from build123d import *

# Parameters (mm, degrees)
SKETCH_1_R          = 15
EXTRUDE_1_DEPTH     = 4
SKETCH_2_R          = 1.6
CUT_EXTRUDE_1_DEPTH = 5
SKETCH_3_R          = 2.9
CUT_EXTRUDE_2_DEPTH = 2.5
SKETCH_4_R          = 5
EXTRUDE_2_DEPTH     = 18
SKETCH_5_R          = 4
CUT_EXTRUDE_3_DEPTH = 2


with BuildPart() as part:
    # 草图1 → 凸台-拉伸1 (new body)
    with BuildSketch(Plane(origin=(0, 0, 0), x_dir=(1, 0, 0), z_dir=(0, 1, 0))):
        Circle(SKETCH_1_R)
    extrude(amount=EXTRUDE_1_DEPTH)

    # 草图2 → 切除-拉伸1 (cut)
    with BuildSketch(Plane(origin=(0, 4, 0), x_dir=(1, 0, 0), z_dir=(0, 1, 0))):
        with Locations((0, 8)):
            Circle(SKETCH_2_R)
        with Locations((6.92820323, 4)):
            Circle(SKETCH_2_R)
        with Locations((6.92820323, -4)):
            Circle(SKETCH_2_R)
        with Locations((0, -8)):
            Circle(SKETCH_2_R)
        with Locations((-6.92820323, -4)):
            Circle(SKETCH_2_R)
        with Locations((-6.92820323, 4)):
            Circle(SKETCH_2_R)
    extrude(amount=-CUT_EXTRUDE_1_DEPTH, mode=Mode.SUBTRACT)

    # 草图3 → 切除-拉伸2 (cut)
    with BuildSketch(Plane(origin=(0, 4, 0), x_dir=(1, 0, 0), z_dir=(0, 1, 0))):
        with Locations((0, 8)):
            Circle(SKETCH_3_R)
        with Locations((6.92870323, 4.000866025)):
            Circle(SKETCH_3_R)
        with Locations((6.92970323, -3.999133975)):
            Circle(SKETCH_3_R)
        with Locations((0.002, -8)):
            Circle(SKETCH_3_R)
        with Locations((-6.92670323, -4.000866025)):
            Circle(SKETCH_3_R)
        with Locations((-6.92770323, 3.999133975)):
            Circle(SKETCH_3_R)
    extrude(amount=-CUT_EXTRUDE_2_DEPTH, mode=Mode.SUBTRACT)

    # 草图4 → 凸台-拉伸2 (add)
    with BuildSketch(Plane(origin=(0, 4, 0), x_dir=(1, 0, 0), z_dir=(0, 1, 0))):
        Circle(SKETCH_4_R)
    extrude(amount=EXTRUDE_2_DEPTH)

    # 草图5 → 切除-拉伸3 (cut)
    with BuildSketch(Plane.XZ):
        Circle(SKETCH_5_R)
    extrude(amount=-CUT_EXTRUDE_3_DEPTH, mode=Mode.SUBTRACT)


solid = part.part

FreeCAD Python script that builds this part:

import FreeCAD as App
import Part
import Sketcher
Q = App.Units.Quantity

doc = App.newDocument("Part")
body = doc.addObject("PartDesign::Body", "Body")

# Sketch on XZ plane
sketch1 = body.newObject("Sketcher::SketchObject", "Sketch")
sketch1.AttachmentSupport = (doc.getObject("XZ_Plane"), [""])
sketch1.MapMode = "FlatFace"
sketch1.addGeometry(Part.Circle(App.Vector(0, 0, 0), App.Vector(0, 0, 1), 15), False)
sketch1.addConstraint([
    Sketcher.Constraint("Coincident", 0, 3, -1, 1),
    Sketcher.Constraint("Diameter", 0, Q("30 mm")),
])
pad1 = body.newObject("PartDesign::Pad", "Pad")
pad1.Profile = sketch1
pad1.Length = 4
pad1.Reversed = True

# Sketch on XZ plane
sketch2 = body.newObject("Sketcher::SketchObject", "Sketch001")
sketch2.AttachmentSupport = (doc.getObject("XZ_Plane"), [""])
sketch2.MapMode = "FlatFace"
sketch2.AttachmentOffset = App.Placement(App.Vector(0, 0, -4), App.Rotation())
sketch2.addGeometry([
    Part.Circle(App.Vector(0, -8, 0), App.Vector(0, 0, 1), 1.6),  # 0
    Part.Circle(App.Vector(6.9, -4, 0), App.Vector(0, 0, 1), 1.6),  # 1
    Part.Circle(App.Vector(6.9, 4, 0), App.Vector(0, 0, 1), 1.6),  # 2
    Part.Circle(App.Vector(0, 8, 0), App.Vector(0, 0, 1), 1.6),  # 3
    Part.Circle(App.Vector(-6.9, 4, 0), App.Vector(0, 0, 1), 1.6),  # 4
    Part.Circle(App.Vector(-6.9, -4, 0), App.Vector(0, 0, 1), 1.6),  # 5
], False)
sketch2.addConstraint([
    Sketcher.Constraint("Equal", 0, 1),
    Sketcher.Constraint("Equal", 1, 2),
    Sketcher.Constraint("Equal", 2, 3),
    Sketcher.Constraint("Equal", 3, 4),
    Sketcher.Constraint("Equal", 4, 5),
    Sketcher.Constraint("Symmetric", 0, 3, 3, 3, -1, 1),
    Sketcher.Constraint("Symmetric", 1, 3, 4, 3, -1, 1),
    Sketcher.Constraint("Symmetric", 2, 3, 5, 3, -1, 1),
    Sketcher.Constraint("Symmetric", 2, 3, 4, 3, -2),
    Sketcher.Constraint("PointOnObject", 0, 3, -2),
    Sketcher.Constraint("Diameter", 0, Q("3.2 mm")),
    Sketcher.Constraint("DistanceY", 0, 3, -1, 1, Q("8 mm")),
    Sketcher.Constraint("DistanceY", 1, 3, -1, 1, Q("4 mm")),
    Sketcher.Constraint("DistanceX", -1, 1, 1, 3, Q("6.928203 mm")),
])
pocket1 = body.newObject("PartDesign::Pocket", "Pocket")
pocket1.Profile = sketch2
pocket1.Length = 5
pocket1.Reversed = True

# Sketch on XZ plane
sketch3 = body.newObject("Sketcher::SketchObject", "Sketch002")
sketch3.AttachmentSupport = (doc.getObject("XZ_Plane"), [""])
sketch3.MapMode = "FlatFace"
sketch3.AttachmentOffset = App.Placement(App.Vector(0, 0, -4), App.Rotation())
sketch3.addGeometry([
    Part.Circle(App.Vector(0, -8, 0), App.Vector(0, 0, 1), 2.9),  # 0
    Part.Circle(App.Vector(6.9, -4, 0), App.Vector(0, 0, 1), 2.9),  # 1
    Part.Circle(App.Vector(6.9, 4, 0), App.Vector(0, 0, 1), 2.9),  # 2
    Part.Circle(App.Vector(0, 8, 0), App.Vector(0, 0, 1), 2.9),  # 3
    Part.Circle(App.Vector(-6.9, 4, 0), App.Vector(0, 0, 1), 2.9),  # 4
    Part.Circle(App.Vector(-6.9, -4, 0), App.Vector(0, 0, 1), 2.9),  # 5
], False)
sketch3.addConstraint([
    Sketcher.Constraint("Equal", 0, 1),
    Sketcher.Constraint("Equal", 1, 2),
    Sketcher.Constraint("Equal", 2, 3),
    Sketcher.Constraint("Equal", 3, 4),
    Sketcher.Constraint("Equal", 4, 5),
    Sketcher.Constraint("PointOnObject", 0, 3, -2),
    Sketcher.Constraint("Diameter", 0, Q("5.8 mm")),
    Sketcher.Constraint("DistanceY", 0, 3, -1, 1, Q("8 mm")),
    Sketcher.Constraint("DistanceY", -1, 1, 3, 3, Q("8 mm")),
    Sketcher.Constraint("DistanceY", 1, 3, 2, 3, Q("8 mm")),
    Sketcher.Constraint("DistanceY", 5, 3, 4, 3, Q("8 mm")),
    Sketcher.Constraint("DistanceX", -1, 1, 3, 3, Q("0.002 mm")),
    Sketcher.Constraint("DistanceX", 1, 3, 2, 3, Q("0.001 mm")),
    Sketcher.Constraint("DistanceX", 5, 3, 4, 3, Q("0.001 mm")),
    Sketcher.Constraint("DistanceX", -1, 1, 1, 3, Q("6.928703 mm")),
    Sketcher.Constraint("DistanceY", 1, 3, -1, 1, Q("4.000866 mm")),
    Sketcher.Constraint("DistanceX", 4, 3, -1, 1, Q("6.926703 mm")),
    Sketcher.Constraint("DistanceY", -1, 1, 4, 3, Q("4.000866 mm")),
])
pocket2 = body.newObject("PartDesign::Pocket", "Pocket001")
pocket2.Profile = sketch3
pocket2.Length = 2.5
pocket2.Reversed = True

# Sketch on XZ plane
sketch4 = body.newObject("Sketcher::SketchObject", "Sketch003")
sketch4.AttachmentSupport = (doc.getObject("XZ_Plane"), [""])
sketch4.MapMode = "FlatFace"
sketch4.AttachmentOffset = App.Placement(App.Vector(0, 0, -4), App.Rotation())
sketch4.addGeometry(Part.Circle(App.Vector(0, 0, 0), App.Vector(0, 0, 1), 5), False)
sketch4.addConstraint([
    Sketcher.Constraint("Coincident", 0, 3, -1, 1),
    Sketcher.Constraint("Diameter", 0, Q("10 mm")),
])
pad2 = body.newObject("PartDesign::Pad", "Pad001")
pad2.Profile = sketch4
pad2.Length = 18
pad2.Reversed = True

# Sketch on XZ plane
sketch5 = body.newObject("Sketcher::SketchObject", "Sketch004")
sketch5.AttachmentSupport = (doc.getObject("XZ_Plane"), [""])
sketch5.MapMode = "FlatFace"
sketch5.addGeometry(Part.Circle(App.Vector(0, 0, 0), App.Vector(0, 0, 1), 4), False)
sketch5.addConstraint([
    Sketcher.Constraint("Coincident", 0, 3, -1, 1),
    Sketcher.Constraint("Diameter", 0, Q("8 mm")),
])
pocket3 = body.newObject("PartDesign::Pocket", "Pocket002")
pocket3.Profile = sketch5
pocket3.Length = 2

doc.recompute()
